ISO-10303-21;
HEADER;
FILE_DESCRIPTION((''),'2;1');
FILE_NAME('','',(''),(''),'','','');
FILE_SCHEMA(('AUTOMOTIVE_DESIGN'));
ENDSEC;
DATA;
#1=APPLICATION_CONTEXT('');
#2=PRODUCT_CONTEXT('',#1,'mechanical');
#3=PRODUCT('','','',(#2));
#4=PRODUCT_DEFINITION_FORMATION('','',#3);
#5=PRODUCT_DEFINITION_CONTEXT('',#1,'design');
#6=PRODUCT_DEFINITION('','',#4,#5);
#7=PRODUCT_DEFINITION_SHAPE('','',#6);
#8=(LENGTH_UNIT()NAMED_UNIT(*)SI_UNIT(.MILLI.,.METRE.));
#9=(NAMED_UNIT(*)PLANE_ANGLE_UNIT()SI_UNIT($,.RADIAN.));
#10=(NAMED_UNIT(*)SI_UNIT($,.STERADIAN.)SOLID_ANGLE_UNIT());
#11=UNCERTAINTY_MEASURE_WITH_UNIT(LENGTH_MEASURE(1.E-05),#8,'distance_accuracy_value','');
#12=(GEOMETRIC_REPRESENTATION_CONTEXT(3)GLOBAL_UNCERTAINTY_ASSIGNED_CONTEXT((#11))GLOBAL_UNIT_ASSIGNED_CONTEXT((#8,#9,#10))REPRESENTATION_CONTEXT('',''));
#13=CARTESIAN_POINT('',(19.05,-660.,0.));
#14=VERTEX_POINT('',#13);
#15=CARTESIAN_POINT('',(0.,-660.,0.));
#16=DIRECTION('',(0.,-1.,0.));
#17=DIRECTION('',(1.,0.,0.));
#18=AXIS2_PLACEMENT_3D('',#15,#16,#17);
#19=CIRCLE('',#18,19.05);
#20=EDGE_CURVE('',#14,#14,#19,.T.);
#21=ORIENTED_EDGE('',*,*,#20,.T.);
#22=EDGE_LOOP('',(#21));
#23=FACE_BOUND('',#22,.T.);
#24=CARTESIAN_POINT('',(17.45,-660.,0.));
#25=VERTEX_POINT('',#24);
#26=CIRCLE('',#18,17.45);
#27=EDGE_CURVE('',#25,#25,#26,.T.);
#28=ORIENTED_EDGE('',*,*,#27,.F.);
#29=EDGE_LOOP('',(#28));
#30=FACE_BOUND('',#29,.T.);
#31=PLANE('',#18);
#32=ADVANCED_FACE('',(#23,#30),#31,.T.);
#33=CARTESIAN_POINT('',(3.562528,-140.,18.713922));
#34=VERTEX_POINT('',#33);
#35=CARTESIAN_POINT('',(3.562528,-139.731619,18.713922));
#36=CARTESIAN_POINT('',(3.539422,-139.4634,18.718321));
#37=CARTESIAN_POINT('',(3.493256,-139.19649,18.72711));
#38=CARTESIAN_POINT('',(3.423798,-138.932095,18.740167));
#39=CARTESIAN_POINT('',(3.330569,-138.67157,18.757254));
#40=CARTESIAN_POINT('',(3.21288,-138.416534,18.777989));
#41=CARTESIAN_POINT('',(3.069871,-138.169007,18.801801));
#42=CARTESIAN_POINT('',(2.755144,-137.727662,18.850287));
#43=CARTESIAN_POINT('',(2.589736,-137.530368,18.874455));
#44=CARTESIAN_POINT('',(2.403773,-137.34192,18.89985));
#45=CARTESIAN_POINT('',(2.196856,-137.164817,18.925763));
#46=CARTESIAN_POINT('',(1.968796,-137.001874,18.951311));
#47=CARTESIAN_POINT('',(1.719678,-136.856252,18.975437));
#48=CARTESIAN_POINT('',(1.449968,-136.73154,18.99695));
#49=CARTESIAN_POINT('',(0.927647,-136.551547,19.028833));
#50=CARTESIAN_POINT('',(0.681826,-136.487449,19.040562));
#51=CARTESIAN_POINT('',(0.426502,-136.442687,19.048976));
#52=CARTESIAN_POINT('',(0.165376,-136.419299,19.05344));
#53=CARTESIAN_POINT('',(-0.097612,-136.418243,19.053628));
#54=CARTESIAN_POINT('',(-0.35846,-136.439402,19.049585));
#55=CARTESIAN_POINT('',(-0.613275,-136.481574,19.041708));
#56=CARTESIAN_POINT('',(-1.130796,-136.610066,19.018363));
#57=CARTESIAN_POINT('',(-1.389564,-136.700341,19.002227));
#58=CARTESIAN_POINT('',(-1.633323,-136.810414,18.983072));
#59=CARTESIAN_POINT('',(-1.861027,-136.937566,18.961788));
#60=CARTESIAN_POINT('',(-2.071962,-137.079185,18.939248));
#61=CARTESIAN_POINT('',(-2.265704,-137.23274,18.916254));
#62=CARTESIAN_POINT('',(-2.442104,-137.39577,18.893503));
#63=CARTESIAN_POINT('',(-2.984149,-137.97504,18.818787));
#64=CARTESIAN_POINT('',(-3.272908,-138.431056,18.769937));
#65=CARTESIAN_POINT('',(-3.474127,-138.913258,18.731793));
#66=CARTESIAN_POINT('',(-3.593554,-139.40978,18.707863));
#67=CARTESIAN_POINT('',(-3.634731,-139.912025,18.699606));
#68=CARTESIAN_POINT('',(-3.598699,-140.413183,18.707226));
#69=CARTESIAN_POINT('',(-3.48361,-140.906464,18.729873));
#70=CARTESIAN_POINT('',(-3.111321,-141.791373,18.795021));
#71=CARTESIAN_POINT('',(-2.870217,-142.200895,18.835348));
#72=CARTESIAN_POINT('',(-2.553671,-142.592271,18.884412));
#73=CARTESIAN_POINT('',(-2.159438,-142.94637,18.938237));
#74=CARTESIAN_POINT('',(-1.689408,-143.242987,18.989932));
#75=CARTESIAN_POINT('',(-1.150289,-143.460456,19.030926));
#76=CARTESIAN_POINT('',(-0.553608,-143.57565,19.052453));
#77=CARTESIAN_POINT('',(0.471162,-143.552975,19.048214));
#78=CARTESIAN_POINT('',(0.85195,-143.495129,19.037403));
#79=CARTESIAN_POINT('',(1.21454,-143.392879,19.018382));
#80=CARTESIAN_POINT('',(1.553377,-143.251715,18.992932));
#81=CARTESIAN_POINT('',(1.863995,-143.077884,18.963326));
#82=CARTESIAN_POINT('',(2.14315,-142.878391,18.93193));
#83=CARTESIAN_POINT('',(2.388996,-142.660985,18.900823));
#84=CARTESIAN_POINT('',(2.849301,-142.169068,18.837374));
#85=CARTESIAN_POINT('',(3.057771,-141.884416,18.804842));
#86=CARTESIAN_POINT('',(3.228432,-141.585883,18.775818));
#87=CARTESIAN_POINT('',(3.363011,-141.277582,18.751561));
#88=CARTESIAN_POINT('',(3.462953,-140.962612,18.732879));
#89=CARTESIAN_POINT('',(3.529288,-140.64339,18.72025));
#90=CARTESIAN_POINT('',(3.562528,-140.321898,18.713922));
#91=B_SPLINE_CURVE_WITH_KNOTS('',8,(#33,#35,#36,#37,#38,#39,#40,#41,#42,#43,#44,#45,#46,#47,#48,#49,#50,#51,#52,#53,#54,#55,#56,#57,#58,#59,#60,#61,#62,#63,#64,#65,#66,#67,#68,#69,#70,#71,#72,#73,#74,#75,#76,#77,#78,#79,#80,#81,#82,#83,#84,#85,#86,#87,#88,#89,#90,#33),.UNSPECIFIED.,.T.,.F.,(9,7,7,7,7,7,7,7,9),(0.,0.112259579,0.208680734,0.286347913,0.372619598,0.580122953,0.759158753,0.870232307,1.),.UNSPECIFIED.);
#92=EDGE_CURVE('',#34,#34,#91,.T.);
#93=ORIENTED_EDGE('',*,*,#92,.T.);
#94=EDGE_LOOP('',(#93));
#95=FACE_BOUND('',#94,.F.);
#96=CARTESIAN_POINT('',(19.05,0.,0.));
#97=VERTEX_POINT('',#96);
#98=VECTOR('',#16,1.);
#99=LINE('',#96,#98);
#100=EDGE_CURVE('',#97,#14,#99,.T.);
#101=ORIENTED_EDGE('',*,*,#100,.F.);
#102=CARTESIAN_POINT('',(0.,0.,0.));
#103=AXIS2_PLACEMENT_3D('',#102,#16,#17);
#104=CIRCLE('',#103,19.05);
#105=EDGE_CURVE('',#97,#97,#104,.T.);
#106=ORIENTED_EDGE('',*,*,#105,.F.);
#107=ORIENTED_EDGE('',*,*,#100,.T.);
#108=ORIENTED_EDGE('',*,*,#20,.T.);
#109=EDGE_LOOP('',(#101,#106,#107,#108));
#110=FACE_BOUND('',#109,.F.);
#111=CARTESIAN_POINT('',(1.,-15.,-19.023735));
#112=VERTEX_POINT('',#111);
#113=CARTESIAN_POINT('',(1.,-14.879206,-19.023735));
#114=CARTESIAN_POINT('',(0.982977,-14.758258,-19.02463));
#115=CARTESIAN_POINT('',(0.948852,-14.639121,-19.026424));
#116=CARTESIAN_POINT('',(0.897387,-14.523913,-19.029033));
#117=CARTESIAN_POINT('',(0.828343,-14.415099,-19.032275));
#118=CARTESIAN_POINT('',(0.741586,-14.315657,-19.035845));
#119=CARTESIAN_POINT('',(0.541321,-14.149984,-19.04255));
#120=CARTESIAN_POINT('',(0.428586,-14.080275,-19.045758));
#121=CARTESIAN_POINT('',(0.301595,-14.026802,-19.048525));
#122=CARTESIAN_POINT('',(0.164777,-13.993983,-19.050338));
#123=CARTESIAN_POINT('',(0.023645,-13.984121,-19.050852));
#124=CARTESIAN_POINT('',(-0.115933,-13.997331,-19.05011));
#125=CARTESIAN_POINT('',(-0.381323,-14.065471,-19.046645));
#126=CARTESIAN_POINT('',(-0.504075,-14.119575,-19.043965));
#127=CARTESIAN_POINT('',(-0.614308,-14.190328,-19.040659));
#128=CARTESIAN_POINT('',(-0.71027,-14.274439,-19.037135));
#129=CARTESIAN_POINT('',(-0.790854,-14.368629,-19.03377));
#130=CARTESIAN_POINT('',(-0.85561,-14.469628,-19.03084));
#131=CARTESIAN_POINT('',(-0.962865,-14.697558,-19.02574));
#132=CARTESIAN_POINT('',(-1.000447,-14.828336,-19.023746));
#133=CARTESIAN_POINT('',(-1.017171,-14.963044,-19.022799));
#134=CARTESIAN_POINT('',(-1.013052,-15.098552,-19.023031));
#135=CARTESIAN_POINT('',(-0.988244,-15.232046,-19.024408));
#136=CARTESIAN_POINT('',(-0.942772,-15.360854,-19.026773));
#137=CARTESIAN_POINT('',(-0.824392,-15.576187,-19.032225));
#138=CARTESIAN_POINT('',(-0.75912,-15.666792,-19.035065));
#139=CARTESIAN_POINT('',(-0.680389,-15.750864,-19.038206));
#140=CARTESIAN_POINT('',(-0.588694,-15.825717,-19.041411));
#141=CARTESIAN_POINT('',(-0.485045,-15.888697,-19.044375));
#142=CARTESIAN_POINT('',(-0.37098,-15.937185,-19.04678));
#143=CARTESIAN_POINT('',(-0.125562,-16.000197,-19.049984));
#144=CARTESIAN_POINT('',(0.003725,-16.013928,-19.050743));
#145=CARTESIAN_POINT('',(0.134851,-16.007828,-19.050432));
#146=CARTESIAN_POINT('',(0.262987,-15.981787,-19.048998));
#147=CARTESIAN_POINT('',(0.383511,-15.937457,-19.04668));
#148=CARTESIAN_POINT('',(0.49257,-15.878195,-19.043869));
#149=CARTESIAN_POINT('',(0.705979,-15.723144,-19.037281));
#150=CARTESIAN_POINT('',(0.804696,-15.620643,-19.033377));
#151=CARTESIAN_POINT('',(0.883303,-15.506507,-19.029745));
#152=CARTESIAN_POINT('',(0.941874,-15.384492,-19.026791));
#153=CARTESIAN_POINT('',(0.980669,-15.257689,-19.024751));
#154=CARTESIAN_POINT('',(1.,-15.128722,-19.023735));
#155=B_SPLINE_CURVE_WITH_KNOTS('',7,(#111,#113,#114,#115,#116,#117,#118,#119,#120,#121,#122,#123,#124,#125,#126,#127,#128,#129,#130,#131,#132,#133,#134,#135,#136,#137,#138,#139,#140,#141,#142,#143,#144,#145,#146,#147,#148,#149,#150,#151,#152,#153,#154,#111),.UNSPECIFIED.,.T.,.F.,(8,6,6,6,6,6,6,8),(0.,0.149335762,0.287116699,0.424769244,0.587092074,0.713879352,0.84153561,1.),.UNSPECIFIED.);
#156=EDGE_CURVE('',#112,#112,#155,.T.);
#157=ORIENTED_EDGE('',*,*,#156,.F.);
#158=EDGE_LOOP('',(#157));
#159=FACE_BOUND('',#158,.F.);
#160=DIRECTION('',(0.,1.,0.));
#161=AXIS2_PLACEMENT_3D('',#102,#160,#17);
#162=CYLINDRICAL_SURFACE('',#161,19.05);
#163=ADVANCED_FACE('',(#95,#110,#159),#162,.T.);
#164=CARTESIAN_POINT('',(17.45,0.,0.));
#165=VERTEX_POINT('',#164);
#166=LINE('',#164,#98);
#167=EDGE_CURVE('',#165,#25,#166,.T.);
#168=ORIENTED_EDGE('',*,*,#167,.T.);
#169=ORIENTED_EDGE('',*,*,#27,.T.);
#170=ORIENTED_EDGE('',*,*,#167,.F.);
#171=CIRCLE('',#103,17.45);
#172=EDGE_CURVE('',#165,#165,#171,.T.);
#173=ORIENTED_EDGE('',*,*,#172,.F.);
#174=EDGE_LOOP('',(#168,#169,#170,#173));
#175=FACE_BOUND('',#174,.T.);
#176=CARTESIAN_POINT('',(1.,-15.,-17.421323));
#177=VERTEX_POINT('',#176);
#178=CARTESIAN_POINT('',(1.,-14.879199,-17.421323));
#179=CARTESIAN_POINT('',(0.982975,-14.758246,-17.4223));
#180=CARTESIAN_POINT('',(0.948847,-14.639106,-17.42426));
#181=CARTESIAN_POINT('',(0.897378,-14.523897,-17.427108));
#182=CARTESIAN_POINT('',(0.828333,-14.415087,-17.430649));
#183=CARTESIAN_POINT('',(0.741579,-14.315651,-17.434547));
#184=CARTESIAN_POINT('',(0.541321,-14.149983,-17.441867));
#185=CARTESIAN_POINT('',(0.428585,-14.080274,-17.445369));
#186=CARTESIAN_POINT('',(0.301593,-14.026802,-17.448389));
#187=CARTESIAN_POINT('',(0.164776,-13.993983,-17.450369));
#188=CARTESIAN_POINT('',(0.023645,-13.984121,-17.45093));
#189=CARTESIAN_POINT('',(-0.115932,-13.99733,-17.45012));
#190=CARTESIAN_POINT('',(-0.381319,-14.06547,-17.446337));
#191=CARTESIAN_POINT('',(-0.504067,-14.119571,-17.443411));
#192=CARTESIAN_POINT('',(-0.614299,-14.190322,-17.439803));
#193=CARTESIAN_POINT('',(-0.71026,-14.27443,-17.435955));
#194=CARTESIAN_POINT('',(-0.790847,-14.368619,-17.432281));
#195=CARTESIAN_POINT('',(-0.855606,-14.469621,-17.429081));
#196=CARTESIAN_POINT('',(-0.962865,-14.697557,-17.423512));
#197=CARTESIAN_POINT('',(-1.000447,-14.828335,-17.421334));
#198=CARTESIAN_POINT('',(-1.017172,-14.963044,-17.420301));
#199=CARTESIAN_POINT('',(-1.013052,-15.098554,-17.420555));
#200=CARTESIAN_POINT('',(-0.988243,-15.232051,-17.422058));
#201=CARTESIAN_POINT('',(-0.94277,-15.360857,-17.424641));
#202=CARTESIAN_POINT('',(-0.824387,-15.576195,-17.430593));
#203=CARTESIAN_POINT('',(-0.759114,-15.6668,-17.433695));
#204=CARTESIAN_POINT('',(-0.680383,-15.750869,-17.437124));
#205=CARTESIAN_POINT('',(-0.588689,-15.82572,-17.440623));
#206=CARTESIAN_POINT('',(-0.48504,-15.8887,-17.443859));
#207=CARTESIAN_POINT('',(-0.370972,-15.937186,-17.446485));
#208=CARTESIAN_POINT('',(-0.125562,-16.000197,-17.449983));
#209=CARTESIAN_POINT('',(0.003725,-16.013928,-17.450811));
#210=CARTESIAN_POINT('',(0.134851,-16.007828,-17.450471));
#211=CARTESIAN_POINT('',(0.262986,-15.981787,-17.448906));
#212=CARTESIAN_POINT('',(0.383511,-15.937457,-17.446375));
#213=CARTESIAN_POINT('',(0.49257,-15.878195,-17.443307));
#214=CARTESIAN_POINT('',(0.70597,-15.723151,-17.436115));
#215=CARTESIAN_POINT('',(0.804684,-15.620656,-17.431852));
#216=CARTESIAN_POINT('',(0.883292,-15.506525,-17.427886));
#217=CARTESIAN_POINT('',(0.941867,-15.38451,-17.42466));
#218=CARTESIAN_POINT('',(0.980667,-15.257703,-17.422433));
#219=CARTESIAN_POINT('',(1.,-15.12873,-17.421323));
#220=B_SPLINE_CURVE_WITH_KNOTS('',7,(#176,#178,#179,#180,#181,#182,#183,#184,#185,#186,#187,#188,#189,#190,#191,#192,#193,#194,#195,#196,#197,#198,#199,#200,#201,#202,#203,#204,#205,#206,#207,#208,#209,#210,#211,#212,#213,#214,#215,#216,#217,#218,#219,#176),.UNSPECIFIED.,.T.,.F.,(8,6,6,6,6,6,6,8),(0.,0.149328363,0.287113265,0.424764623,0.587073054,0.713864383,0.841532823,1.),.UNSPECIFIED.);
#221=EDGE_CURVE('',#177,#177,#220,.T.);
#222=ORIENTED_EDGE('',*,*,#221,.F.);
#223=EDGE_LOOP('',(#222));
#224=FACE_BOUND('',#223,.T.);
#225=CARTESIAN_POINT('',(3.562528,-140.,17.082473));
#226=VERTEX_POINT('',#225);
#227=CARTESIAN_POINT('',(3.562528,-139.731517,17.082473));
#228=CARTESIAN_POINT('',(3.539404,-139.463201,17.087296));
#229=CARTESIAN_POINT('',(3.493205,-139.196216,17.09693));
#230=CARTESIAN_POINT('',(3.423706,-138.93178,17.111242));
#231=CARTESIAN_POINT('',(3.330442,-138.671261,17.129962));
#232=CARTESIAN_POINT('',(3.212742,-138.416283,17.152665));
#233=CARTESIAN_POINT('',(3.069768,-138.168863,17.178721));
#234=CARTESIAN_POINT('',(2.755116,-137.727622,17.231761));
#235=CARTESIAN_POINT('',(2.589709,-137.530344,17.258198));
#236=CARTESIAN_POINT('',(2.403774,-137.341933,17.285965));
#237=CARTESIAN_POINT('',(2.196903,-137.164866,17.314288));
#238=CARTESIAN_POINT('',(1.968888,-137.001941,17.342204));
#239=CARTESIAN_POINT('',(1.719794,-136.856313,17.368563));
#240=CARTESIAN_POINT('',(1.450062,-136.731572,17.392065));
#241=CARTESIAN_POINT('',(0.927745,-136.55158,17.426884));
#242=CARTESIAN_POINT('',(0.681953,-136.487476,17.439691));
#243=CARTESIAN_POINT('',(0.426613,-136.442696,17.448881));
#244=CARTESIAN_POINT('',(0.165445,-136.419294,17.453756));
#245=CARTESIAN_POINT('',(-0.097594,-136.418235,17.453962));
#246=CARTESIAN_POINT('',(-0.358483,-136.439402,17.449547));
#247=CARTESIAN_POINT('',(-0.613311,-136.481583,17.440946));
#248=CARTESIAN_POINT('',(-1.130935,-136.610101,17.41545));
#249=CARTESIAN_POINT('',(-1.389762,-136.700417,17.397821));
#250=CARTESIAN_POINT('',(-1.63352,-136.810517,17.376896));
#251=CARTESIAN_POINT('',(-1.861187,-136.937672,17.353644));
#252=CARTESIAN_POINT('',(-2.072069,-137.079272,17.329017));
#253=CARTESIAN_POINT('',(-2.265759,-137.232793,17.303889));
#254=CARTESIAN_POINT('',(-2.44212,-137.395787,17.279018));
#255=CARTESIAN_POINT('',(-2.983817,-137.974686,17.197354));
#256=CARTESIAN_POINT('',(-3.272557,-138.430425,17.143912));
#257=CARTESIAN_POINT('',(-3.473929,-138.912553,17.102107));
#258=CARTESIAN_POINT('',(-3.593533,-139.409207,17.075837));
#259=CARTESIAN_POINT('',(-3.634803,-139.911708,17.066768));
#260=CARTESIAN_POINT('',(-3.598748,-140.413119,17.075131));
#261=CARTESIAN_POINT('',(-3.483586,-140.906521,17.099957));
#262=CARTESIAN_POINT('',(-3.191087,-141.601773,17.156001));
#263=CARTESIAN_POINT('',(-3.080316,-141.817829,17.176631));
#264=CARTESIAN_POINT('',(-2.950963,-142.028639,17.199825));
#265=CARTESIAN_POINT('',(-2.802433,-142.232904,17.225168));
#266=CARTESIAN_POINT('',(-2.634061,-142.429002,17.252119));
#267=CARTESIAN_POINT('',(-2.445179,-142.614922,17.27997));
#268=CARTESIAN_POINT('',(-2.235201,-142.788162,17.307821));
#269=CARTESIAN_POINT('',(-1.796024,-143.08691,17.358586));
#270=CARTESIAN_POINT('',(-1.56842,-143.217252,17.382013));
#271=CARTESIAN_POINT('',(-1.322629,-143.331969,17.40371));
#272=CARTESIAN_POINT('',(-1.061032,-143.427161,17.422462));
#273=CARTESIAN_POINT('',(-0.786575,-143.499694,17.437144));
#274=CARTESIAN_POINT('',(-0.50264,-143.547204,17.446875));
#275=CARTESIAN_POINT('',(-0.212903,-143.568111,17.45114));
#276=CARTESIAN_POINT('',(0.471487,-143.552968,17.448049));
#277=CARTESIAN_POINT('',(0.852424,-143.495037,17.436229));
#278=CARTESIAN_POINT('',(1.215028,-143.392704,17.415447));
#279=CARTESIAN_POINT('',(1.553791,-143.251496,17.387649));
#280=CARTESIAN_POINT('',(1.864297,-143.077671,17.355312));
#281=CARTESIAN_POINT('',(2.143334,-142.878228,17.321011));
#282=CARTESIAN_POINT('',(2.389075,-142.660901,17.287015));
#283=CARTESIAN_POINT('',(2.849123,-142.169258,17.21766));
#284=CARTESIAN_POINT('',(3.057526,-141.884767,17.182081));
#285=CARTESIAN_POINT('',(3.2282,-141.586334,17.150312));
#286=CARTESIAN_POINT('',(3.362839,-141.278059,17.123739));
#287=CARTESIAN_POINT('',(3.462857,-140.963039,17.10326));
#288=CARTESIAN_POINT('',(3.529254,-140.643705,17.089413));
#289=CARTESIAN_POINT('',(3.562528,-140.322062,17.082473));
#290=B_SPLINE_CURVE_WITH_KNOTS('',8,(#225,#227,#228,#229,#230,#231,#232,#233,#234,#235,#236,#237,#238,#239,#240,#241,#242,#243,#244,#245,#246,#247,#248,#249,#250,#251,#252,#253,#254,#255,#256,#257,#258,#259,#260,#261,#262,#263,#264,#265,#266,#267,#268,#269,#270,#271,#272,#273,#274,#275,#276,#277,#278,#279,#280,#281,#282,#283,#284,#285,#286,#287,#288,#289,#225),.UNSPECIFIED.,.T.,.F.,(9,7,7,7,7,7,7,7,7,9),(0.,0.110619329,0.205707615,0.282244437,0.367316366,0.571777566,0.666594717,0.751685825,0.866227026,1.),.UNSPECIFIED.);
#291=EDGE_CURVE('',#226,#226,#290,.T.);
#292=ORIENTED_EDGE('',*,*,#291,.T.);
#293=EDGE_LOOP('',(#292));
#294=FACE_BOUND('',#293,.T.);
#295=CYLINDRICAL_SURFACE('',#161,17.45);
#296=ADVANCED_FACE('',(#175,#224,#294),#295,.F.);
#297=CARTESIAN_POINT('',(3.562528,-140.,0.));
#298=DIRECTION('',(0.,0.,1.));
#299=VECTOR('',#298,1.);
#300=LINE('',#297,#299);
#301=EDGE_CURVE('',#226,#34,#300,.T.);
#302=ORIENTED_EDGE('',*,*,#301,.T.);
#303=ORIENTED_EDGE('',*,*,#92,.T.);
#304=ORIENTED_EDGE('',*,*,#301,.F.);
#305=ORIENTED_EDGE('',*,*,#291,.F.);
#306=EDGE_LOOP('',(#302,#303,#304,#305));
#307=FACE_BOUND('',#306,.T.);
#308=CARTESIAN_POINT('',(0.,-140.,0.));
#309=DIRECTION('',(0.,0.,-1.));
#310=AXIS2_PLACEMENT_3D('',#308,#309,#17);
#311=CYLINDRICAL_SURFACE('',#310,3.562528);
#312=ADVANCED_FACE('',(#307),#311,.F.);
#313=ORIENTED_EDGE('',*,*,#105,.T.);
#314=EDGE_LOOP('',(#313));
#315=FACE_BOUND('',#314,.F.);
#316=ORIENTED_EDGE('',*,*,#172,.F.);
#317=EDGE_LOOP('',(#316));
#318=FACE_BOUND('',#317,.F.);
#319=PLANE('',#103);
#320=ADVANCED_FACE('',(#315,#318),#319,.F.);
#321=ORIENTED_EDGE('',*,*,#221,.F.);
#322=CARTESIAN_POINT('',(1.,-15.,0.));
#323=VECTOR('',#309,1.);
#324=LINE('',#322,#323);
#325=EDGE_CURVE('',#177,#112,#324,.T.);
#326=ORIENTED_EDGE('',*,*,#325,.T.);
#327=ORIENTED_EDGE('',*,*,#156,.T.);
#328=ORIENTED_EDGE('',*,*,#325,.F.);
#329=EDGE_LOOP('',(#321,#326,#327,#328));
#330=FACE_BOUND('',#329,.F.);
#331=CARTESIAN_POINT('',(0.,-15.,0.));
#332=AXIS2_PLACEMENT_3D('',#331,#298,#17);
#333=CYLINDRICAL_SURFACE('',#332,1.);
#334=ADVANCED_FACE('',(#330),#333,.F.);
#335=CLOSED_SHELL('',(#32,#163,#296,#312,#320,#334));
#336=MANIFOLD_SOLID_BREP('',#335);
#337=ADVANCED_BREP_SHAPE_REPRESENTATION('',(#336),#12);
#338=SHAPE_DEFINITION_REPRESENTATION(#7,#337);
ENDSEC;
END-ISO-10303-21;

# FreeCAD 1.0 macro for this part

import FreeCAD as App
import Part
import Sketcher

V = App.Vector

doc = App.newDocument("Part")
body = doc.addObject("PartDesign::Body", "Body")

# Sketch on XZ plane
sketch1 = body.newObject("Sketcher::SketchObject", "Sketch")
sketch1.AttachmentSupport = (doc.getObject("XZ_Plane"), [""])
sketch1.MapMode = "FlatFace"
sketch1.addGeometry(Part.Circle(V(0, 0, 0), V(0, 0, 1), 19.05), False)
sketch1.addGeometry(Part.Circle(V(0, 0, 0), V(0, 0, 1), 17.45), False)
sketch1.addConstraint(Sketcher.Constraint("Coincident", 0, 3, -1, 1))
sketch1.addConstraint(Sketcher.Constraint("Coincident", 1, 3, -1, 1))
sketch1.addConstraint(Sketcher.Constraint("Diameter", 0, 38.1))
sketch1.addConstraint(Sketcher.Constraint("Diameter", 1, 34.9))
pad1 = body.newObject("PartDesign::Pad", "Pad")
pad1.Profile = sketch1
pad1.Length = 660

# Sketch on XY plane
sketch2 = body.newObject("Sketcher::SketchObject", "Sketch001")
sketch2.AttachmentSupport = (doc.getObject("XY_Plane"), [""])
sketch2.MapMode = "FlatFace"
sketch2.addGeometry(Part.Circle(V(0, -140, 0), V(0, 0, 1), 3.562528), False)
sketch2.addConstraint(Sketcher.Constraint("PointOnObject", 0, 3, -2))
sketch2.addConstraint(Sketcher.Constraint("DistanceY", 0, 3, -1, 1, 140.0))
sketch2.addConstraint(Sketcher.Constraint("Diameter", 0, 7.125057))
pocket1 = body.newObject("PartDesign::Pocket", "Pocket")
pocket1.Profile = sketch2
pocket1.Length = 20.05
pocket1.Reversed = True

# Sketch on XY plane
sketch3 = body.newObject("Sketcher::SketchObject", "Sketch002")
sketch3.AttachmentSupport = (doc.getObject("XY_Plane"), [""])
sketch3.MapMode = "FlatFace"
sketch3.addGeometry(Part.Circle(V(0, -15, 0), V(0, 0, 1), 1), False)
sketch3.addConstraint(Sketcher.Constraint("PointOnObject", 0, 3, -2))
sketch3.addConstraint(Sketcher.Constraint("Diameter", 0, 2.0))
sketch3.addConstraint(Sketcher.Constraint("DistanceY", 0, 3, -1, 1, 15.0))
pocket2 = body.newObject("PartDesign::Pocket", "Pocket001")
pocket2.Profile = sketch3
pocket2.Length = 20.05

doc.recompute()
